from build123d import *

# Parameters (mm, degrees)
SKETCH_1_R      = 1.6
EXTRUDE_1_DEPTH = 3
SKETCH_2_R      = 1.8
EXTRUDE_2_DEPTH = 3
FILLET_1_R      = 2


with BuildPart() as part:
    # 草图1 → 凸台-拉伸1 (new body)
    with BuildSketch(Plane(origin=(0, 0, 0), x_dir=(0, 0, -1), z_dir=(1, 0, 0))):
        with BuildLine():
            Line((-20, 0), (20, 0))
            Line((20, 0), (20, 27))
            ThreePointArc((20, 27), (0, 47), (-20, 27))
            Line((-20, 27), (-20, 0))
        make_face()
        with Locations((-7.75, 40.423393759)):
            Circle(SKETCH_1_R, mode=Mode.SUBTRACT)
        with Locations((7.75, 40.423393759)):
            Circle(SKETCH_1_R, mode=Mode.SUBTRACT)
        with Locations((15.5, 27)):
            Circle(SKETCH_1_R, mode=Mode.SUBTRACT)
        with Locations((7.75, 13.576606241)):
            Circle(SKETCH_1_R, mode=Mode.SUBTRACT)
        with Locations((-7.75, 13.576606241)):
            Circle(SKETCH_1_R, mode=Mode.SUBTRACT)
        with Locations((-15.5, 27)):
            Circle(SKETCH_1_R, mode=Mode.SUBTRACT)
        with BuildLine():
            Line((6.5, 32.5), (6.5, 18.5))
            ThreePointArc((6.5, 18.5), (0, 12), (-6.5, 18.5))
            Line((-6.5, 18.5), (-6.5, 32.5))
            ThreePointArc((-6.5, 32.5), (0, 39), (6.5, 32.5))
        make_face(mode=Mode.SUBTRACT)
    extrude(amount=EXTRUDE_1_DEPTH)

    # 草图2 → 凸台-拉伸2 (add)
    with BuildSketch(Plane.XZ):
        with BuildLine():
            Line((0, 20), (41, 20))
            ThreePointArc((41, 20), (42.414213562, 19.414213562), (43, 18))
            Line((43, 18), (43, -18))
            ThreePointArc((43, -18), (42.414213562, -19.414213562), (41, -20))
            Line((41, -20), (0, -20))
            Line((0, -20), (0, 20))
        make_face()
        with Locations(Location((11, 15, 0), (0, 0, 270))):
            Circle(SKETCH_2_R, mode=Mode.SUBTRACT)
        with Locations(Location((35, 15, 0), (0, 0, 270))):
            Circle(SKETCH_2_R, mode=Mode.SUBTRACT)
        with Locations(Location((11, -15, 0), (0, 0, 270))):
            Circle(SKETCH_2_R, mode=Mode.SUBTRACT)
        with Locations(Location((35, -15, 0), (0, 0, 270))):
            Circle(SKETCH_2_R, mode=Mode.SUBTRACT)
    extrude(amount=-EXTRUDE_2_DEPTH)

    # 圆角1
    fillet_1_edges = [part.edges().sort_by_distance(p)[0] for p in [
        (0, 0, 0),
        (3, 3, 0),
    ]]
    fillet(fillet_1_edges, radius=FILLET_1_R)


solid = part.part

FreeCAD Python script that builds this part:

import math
import FreeCAD as App
import Part
import Sketcher


def edges_at(feature, points):
    """Names of the edges that pass closest to the given points."""
    edges = feature.Shape.Edges
    near = lambda p: min(range(len(edges)), key=lambda i: edges[i].distToShape(Part.Vertex(*p))[0])
    return sorted({f"Edge{near(p) + 1}" for p in points})

doc = App.newDocument("Part")
body = doc.addObject("PartDesign::Body", "Body")

# Sketch on YZ plane
sketch1 = body.newObject("Sketcher::SketchObject", "Sketch")
sketch1.AttachmentSupport = (doc.getObject("YZ_Plane"), [""])
sketch1.MapMode = "FlatFace"
sketch1.addGeometry([
    Part.LineSegment(App.Vector(0, 20, 0), App.Vector(0, -20, 0)),  # 0
    Part.LineSegment(App.Vector(0, -20, 0), App.Vector(27, -20, 0)),  # 1
    Part.ArcOfCircle(Part.Circle(App.Vector(27, 0, 0), App.Vector(0, 0, 1), 20), math.radians(-90), math.radians(90)),  # 2
    Part.LineSegment(App.Vector(27, 20, 0), App.Vector(0, 20, 0)),  # 3
    Part.Circle(App.Vector(13.576606, 7.75, 0), App.Vector(0, 0, 1), 1.6),  # 4
    Part.Circle(App.Vector(27, 15.5, 0), App.Vector(0, 0, 1), 1.6),  # 5
    Part.Circle(App.Vector(13.576606, -7.75, 0), App.Vector(0, 0, 1), 1.6),  # 6
    Part.ArcOfCircle(Part.Circle(App.Vector(32.5, 0, 0), App.Vector(0, 0, 1), 6.5), math.radians(-90), math.radians(90)),  # 7
    Part.LineSegment(App.Vector(32.5, -6.5, 0), App.Vector(18.5, -6.5, 0)),  # 8
    Part.ArcOfCircle(Part.Circle(App.Vector(18.5, 0, 0), App.Vector(0, 0, 1), 6.5), math.radians(90), math.radians(270)),  # 9
    Part.LineSegment(App.Vector(18.5, 6.5, 0), App.Vector(32.5, 6.5, 0)),  # 10
    Part.Circle(App.Vector(27, -15.5, 0), App.Vector(0, 0, 1), 1.6),  # 11
    Part.Circle(App.Vector(40.423394, 7.75, 0), App.Vector(0, 0, 1), 1.6),  # 12
    Part.Circle(App.Vector(40.423394, -7.75, 0), App.Vector(0, 0, 1), 1.6),  # 13
], False)
sketch1.addConstraint([
    Sketcher.Constraint("Coincident", 0, 2, 1, 1),
    Sketcher.Constraint("Tangent", 1, 2, 2, 1),
    Sketcher.Constraint("Tangent", 2, 2, 3, 1),
    Sketcher.Constraint("Coincident", 3, 2, 0, 1),
    Sketcher.Constraint("Tangent", 7, 1, 8, 1),
    Sketcher.Constraint("Tangent", 8, 2, 9, 2),
    Sketcher.Constraint("Tangent", 9, 1, 10, 1),
    Sketcher.Constraint("Tangent", 10, 2, 7, 2),
    Sketcher.Constraint("Vertical", 0),
    Sketcher.Constraint("Horizontal", 1),
    Sketcher.Constraint("Horizontal", 3),
    Sketcher.Constraint("Horizontal", 8),
    Sketcher.Constraint("Horizontal", 10),
    Sketcher.Constraint("Equal", 4, 5),
    Sketcher.Constraint("Equal", 5, 6),
    Sketcher.Constraint("Equal", 6, 11),
    Sketcher.Constraint("Equal", 11, 12),
    Sketcher.Constraint("Equal", 12, 13),
    Sketcher.Constraint("Symmetric", 0, 2, 3, 2, -1, 1),
    Sketcher.Constraint("Symmetric", 4, 3, 6, 3, -1),
    Sketcher.Constraint("Symmetric", 5, 3, 11, 3, -1),
    Sketcher.Constraint("Symmetric", 12, 3, 13, 3, -1),
    Sketcher.Constraint("PointOnObject", 7, 3, -1),
    Sketcher.Constraint("Horizontal", 4, 3, 12, 3),
    Sketcher.Constraint("Vertical", 2, 3, 5, 3),
    Sketcher.Constraint("Radius", 2, 20.0),
    Sketcher.Constraint("Diameter", 4, 3.2),
    Sketcher.Constraint("Radius", 7, 6.5),
    Sketcher.Constraint("DistanceX", 1, 1, 1, 2, 27.0),
    Sketcher.Constraint("DistanceX", 8, 2, 8, 1, 14.0),
    Sketcher.Constraint("DistanceY", 11, 3, 7, 1, 9.0),
    Sketcher.Constraint("DistanceX", -1, 1, 7, 3, 32.5),
    Sketcher.Constraint("DistanceY", 6, 3, 4, 3, 15.5),
    Sketcher.Constraint("DistanceX", -1, 1, 4, 3, 13.576606),
    Sketcher.Constraint("DistanceX", -1, 1, 12, 3, 40.423394),
])
pad1 = body.newObject("PartDesign::Pad", "Pad")
pad1.Profile = sketch1
pad1.Length = 3

# Sketch on XZ plane
sketch2 = body.newObject("Sketcher::SketchObject", "Sketch001")
sketch2.AttachmentSupport = (doc.getObject("XZ_Plane"), [""])
sketch2.MapMode = "FlatFace"
sketch2.addGeometry([
    Part.LineSegment(App.Vector(41, 20, 0), App.Vector(0, 20, 0)),  # 0
    Part.LineSegment(App.Vector(0, 20, 0), App.Vector(0, -20, 0)),  # 1
    Part.LineSegment(App.Vector(0, -20, 0), App.Vector(41, -20, 0)),  # 2
    Part.ArcOfCircle(Part.Circle(App.Vector(41, -18, 0), App.Vector(0, 0, 1), 2), math.radians(-90), math.radians(0)),  # 3
    Part.LineSegment(App.Vector(43, -18, 0), App.Vector(43, 18, 0)),  # 4
    Part.ArcOfCircle(Part.Circle(App.Vector(41, 18, 0), App.Vector(0, 0, 1), 2), math.radians(0), math.radians(90)),  # 5
    Part.Circle(App.Vector(35, -15, 0), App.Vector(0, 0, 1), 1.8),  # 6
    Part.Circle(App.Vector(11, -15, 0), App.Vector(0, 0, 1), 1.8),  # 7
    Part.Circle(App.Vector(35, 15, 0), App.Vector(0, 0, 1), 1.8),  # 8
    Part.Circle(App.Vector(11, 15, 0), App.Vector(0, 0, 1), 1.8),  # 9
], False)
sketch2.addConstraint([
    Sketcher.Constraint("Coincident", 0, 2, 1, 1),
    Sketcher.Constraint("Coincident", 1, 2, 2, 1),
    Sketcher.Constraint("Tangent", 2, 2, 3, 1),
    Sketcher.Constraint("Tangent", 3, 2, 4, 1),
    Sketcher.Constraint("Tangent", 4, 2, 5, 1),
    Sketcher.Constraint("Tangent", 5, 2, 0, 1),
    Sketcher.Constraint("Horizontal", 0),
    Sketcher.Constraint("Vertical", 1),
    Sketcher.Constraint("Horizontal", 2),
    Sketcher.Constraint("Vertical", 4),
    Sketcher.Constraint("Equal", 3, 5),
    Sketcher.Constraint("Equal", 6, 7),
    Sketcher.Constraint("Equal", 7, 8),
    Sketcher.Constraint("Equal", 8, 9),
    Sketcher.Constraint("Symmetric", 0, 2, 1, 2, -1, 1),
    Sketcher.Constraint("Symmetric", 6, 3, 8, 3, -1),
    Sketcher.Constraint("Symmetric", 7, 3, 9, 3, -1),
    Sketcher.Constraint("Horizontal", 6, 3, 7, 3),
    Sketcher.Constraint("Radius", 3, 2.0),
    Sketcher.Constraint("Diameter", 6, 3.6),
    Sketcher.Constraint("DistanceX", 0, 2, 0, 1, 41.0),
    Sketcher.Constraint("DistanceY", 1, 2, 1, 1, 40.0),
    Sketcher.Constraint("DistanceX", -1, 1, 6, 3, 35.0),
    Sketcher.Constraint("DistanceY", 6, 3, -1, 1, 15.0),
    Sketcher.Constraint("DistanceX", -1, 1, 7, 3, 11.0),
])
pad2 = body.newObject("PartDesign::Pad", "Pad001")
pad2.Profile = sketch2
pad2.Length = 3
pad2.Reversed = True
doc.recompute()

fillet = body.newObject("PartDesign::Fillet", "Fillet")
fillet.Base = (pad2, edges_at(pad2, [(0, 0, 0), (3, 3, 0)]))
fillet.Radius = 2

doc.recompute()
